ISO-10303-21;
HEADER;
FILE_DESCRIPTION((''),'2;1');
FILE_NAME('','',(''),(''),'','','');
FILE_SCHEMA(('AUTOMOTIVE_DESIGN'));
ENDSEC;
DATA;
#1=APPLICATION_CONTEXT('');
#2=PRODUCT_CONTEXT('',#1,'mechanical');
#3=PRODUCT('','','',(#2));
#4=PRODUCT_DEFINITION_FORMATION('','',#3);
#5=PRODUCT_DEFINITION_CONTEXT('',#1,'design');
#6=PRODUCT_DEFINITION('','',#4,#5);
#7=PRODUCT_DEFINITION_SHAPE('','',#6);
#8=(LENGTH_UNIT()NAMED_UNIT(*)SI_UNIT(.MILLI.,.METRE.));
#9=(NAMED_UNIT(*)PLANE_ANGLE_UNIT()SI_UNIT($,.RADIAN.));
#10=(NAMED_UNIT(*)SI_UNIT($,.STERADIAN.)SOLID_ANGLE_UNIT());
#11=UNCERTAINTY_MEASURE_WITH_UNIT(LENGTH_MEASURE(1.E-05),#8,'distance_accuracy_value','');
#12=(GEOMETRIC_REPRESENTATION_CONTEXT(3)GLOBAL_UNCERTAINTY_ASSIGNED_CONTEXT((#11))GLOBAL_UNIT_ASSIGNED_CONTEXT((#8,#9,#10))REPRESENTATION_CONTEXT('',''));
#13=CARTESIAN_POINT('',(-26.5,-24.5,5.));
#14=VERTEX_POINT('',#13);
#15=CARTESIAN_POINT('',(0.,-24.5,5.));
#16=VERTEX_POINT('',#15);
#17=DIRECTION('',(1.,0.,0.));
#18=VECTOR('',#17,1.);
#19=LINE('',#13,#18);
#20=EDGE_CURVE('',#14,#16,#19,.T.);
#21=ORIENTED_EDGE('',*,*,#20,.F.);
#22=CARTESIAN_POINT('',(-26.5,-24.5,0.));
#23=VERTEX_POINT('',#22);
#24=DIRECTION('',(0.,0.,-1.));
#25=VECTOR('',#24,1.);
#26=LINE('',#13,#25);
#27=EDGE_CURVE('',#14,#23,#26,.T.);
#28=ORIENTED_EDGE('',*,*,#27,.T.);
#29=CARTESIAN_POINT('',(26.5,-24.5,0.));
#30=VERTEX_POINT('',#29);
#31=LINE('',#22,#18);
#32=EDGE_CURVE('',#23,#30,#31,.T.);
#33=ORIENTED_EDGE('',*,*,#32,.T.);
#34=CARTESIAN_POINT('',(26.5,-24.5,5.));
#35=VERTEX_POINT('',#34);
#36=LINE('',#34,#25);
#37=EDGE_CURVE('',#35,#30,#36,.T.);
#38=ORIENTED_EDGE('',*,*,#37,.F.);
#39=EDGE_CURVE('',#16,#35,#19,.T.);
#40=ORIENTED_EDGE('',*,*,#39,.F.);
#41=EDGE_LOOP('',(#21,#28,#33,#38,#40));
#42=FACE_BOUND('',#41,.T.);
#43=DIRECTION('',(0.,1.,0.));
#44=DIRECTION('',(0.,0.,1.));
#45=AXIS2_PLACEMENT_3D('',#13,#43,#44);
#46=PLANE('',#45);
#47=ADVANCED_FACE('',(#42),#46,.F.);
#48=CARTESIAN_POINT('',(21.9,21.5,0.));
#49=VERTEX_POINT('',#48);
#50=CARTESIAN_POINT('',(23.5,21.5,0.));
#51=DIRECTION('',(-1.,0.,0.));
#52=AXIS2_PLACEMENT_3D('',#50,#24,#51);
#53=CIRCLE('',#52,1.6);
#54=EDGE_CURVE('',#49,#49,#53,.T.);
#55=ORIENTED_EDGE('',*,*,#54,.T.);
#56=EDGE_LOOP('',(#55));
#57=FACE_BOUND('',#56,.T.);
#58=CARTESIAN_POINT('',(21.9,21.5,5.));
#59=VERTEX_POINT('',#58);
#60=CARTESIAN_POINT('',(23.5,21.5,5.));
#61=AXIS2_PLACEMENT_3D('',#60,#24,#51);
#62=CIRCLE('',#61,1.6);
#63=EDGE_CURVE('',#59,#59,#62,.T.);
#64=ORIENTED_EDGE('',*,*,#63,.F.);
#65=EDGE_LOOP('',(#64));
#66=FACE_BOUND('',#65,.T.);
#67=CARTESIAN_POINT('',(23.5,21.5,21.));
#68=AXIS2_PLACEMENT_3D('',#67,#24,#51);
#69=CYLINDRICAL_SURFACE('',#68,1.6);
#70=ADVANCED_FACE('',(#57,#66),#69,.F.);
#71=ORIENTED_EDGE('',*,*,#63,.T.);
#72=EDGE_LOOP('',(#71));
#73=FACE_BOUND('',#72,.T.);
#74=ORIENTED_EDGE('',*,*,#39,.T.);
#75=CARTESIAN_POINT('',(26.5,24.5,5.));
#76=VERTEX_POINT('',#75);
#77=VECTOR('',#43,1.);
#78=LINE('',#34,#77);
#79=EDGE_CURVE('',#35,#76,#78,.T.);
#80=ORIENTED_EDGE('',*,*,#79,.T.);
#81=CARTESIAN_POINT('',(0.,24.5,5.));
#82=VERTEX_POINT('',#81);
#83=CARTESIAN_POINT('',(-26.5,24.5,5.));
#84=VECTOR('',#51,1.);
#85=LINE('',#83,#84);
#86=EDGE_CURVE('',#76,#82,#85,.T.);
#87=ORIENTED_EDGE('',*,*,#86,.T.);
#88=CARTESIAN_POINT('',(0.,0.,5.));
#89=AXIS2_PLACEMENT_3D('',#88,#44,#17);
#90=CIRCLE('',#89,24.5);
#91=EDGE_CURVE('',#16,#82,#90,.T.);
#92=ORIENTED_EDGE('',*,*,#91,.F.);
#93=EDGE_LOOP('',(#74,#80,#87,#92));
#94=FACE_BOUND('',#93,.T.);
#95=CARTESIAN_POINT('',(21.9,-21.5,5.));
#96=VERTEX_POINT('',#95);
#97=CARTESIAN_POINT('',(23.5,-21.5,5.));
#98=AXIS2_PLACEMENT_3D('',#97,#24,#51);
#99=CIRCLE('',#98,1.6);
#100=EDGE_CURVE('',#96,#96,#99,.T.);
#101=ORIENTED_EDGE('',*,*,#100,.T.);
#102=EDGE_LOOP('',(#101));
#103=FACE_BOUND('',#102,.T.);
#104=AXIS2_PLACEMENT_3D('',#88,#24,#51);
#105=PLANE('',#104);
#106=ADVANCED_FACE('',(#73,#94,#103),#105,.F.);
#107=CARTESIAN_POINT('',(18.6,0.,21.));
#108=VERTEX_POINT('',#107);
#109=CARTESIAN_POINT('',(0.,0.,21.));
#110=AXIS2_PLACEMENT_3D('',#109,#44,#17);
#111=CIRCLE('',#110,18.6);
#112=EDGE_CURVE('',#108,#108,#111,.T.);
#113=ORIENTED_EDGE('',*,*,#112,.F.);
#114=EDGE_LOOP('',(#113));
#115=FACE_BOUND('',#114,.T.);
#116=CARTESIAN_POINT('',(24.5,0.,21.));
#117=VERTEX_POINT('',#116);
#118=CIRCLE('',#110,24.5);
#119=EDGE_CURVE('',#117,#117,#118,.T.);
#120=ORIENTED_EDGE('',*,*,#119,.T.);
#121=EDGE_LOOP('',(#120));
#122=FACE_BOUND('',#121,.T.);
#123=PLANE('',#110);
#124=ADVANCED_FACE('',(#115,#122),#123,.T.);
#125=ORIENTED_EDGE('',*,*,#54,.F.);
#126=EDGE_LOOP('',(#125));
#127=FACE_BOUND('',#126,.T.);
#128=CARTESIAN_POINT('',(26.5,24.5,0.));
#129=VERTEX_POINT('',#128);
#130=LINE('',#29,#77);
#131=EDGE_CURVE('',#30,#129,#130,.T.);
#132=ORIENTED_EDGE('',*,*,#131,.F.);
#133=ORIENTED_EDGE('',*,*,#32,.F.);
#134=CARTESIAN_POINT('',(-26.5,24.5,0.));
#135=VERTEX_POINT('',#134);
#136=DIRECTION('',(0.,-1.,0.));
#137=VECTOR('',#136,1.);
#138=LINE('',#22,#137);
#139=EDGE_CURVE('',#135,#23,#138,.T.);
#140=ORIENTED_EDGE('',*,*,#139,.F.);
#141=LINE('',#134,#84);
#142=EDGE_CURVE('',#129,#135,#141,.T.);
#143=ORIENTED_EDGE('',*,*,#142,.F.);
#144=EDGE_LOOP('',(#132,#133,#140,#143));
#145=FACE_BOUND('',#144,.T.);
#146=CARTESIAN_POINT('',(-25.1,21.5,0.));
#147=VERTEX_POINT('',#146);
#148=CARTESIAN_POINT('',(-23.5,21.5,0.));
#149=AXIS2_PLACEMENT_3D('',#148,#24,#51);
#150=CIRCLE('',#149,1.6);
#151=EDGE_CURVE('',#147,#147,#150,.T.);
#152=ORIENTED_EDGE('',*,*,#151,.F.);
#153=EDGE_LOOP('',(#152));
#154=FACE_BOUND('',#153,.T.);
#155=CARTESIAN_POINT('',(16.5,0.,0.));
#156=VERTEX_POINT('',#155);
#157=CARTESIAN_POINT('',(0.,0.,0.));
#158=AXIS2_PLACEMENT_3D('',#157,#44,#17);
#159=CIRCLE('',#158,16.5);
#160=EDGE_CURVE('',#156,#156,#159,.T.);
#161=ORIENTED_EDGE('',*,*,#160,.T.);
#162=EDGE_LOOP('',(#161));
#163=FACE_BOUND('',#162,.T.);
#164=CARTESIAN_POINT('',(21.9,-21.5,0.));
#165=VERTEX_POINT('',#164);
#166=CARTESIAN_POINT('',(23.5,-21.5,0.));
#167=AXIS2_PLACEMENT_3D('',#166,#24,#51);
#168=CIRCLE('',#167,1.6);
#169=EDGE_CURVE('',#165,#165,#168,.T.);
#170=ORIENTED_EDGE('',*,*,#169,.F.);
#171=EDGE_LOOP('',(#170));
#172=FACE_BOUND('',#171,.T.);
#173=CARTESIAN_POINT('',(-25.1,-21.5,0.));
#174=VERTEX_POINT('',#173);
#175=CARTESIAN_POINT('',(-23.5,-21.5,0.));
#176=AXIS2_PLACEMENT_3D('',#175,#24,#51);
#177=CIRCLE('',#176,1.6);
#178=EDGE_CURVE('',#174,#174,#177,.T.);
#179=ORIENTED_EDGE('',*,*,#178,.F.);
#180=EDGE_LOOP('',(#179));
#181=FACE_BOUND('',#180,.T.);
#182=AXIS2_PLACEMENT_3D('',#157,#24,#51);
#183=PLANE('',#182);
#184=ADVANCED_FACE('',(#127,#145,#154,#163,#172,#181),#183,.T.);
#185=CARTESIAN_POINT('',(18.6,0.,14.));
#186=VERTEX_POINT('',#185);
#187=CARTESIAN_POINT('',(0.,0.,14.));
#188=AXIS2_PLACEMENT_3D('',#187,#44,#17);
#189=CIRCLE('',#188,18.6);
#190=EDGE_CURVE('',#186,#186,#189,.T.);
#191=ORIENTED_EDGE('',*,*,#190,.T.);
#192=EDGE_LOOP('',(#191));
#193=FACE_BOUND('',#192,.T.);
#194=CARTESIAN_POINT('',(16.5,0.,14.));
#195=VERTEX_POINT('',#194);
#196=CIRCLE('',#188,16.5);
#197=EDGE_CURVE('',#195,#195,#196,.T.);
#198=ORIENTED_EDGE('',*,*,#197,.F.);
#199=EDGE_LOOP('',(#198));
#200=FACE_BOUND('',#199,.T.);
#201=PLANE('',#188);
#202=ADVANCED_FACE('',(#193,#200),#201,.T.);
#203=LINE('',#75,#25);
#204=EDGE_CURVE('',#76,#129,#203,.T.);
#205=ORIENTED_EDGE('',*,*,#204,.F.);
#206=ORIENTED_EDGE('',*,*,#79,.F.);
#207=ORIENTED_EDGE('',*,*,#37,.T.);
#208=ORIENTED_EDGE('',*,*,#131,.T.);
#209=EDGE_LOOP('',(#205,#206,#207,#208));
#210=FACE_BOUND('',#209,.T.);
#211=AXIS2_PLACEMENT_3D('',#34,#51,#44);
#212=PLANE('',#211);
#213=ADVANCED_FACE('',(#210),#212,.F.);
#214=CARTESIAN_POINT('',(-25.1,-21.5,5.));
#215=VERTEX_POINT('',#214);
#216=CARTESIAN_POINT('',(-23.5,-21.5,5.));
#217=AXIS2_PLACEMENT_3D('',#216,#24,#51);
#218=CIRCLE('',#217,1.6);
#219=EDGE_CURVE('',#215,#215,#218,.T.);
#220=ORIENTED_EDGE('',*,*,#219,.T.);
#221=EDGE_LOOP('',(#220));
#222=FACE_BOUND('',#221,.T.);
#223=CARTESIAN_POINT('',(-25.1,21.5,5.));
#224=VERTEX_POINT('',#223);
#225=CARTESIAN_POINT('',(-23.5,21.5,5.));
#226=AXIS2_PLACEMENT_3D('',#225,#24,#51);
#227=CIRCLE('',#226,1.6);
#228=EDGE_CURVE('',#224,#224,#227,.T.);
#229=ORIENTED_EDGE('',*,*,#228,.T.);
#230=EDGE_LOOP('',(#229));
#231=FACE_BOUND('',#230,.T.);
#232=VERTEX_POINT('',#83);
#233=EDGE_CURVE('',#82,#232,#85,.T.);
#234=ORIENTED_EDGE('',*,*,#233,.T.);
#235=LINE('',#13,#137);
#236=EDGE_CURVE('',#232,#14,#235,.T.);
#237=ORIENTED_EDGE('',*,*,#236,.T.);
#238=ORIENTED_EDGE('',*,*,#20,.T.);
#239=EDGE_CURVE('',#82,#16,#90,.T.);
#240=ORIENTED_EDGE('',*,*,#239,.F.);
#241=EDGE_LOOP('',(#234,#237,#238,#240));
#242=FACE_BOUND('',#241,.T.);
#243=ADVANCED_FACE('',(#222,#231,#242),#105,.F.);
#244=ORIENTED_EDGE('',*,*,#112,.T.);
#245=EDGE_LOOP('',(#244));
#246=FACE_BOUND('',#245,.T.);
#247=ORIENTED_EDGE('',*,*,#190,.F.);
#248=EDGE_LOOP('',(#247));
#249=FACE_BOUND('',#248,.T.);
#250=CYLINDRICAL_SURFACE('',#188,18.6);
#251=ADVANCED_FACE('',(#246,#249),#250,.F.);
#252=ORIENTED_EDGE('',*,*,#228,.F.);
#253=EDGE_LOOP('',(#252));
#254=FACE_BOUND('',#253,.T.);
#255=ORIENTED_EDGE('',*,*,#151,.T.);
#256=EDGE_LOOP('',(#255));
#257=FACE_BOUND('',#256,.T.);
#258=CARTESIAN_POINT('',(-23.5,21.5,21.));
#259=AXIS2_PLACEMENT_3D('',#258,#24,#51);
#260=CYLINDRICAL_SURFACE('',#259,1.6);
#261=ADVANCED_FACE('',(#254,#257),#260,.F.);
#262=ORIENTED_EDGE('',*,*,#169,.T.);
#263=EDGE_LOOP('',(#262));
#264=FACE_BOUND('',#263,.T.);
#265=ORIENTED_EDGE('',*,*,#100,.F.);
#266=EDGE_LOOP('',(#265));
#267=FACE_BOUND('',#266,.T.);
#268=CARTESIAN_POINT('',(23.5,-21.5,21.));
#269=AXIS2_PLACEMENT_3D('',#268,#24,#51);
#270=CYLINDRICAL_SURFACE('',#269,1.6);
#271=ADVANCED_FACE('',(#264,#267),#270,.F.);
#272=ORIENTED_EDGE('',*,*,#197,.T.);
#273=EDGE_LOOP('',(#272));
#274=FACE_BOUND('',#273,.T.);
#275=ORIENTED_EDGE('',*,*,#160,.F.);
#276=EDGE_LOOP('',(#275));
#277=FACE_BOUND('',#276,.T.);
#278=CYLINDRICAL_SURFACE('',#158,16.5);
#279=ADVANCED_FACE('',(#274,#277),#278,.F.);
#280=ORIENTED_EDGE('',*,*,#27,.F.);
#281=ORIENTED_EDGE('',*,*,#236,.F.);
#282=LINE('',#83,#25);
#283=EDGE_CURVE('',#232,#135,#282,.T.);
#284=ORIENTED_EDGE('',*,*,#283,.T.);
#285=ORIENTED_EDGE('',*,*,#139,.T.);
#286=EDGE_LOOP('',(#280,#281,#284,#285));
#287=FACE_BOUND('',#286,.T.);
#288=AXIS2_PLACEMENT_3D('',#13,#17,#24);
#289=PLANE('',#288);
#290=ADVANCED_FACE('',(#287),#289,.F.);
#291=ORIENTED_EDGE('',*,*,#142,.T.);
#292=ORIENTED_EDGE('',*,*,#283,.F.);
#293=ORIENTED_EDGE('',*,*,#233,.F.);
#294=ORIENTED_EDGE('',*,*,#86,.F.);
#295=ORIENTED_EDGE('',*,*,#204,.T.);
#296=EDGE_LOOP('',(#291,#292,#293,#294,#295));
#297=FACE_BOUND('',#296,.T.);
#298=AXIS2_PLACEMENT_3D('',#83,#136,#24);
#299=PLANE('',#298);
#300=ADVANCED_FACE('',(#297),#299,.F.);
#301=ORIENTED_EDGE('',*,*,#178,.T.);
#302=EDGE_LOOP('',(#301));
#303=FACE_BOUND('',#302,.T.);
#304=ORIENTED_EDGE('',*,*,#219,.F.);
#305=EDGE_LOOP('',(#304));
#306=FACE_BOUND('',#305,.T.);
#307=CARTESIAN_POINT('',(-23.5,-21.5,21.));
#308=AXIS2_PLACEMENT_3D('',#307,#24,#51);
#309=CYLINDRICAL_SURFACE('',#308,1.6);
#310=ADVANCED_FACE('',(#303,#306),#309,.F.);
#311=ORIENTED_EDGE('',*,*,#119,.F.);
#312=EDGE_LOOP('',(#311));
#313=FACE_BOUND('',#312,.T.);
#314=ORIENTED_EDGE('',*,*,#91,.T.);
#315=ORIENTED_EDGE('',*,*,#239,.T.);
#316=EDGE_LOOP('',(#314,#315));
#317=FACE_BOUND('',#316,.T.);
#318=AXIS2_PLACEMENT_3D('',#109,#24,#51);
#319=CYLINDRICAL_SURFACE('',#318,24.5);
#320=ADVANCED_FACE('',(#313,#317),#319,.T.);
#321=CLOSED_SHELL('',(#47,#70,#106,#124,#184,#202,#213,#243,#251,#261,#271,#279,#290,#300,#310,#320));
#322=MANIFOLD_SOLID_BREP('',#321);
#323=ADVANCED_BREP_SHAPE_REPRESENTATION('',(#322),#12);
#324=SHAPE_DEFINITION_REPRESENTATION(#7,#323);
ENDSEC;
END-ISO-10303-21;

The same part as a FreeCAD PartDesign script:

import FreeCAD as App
import Part
import Sketcher


def add_polygon(sketch, points):
    """Adds a closed chain of lines whose ends are joined by coincident constraints."""
    first, n = sketch.GeometryCount, len(points)
    for a, b in zip(points, points[1:] + points[:1]):
        sketch.addGeometry(Part.LineSegment(App.Vector(*a, 0), App.Vector(*b, 0)), False)
    for i in range(n):
        sketch.addConstraint(Sketcher.Constraint("Coincident", first + i, 2, first + (i + 1) % n, 1))

doc = App.newDocument("Part")
body = doc.addObject("PartDesign::Body", "Body")

sketch1 = doc.addObject("Sketcher::SketchObject", "Sketch")
body.addObject(sketch1)
sketch1.AttachmentSupport = (doc.XY_Plane, [""])
sketch1.MapMode = "FlatFace"
add_polygon(sketch1, [(-26, 24), (-26, -24), (26, -24), (26, 24)])
sketch1.addConstraint(Sketcher.Constraint("Vertical", 0))
sketch1.addConstraint(Sketcher.Constraint("Horizontal", 1))
sketch1.addConstraint(Sketcher.Constraint("Vertical", 2))
sketch1.addConstraint(Sketcher.Constraint("Horizontal", 3))
sketch1.addConstraint(Sketcher.Constraint("Symmetric", 0, 2, 2, 2, -1, 1))
sketch1.addConstraint(Sketcher.Constraint("DistanceX", 1, 1, 1, 2, 53.0))
sketch1.addConstraint(Sketcher.Constraint("DistanceY", 0, 2, 0, 1, 49.0))
pad1 = doc.addObject("PartDesign::Pad", "Pad")
body.addObject(pad1)
pad1.Profile = sketch1
pad1.Length = 5

sketch2 = doc.addObject("Sketcher::SketchObject", "Sketch001")
body.addObject(sketch2)
sketch2.AttachmentSupport = (doc.XY_Plane, [""])
sketch2.MapMode = "FlatFace"
sketch2.AttachmentOffset = App.Placement(App.Vector(0, 0, 5), App.Rotation())
sketch2.addGeometry(Part.Circle(App.Vector(0, 0, 0), App.Vector(0, 0, 1), 24), False)
sketch2.addConstraint(Sketcher.Constraint("Coincident", 0, 3, -1, 1))
sketch2.addConstraint(Sketcher.Constraint("Diameter", 0, 49.0))
pad2 = doc.addObject("PartDesign::Pad", "Pad001")
body.addObject(pad2)
pad2.Profile = sketch2
pad2.Length = 16

sketch3 = doc.addObject("Sketcher::SketchObject", "Sketch002")
body.addObject(sketch3)
sketch3.AttachmentSupport = (doc.XY_Plane, [""])
sketch3.MapMode = "FlatFace"
sketch3.addGeometry(Part.Circle(App.Vector(-23.5, -21.5, 0), App.Vector(0, 0, 1), 1.6), False)
sketch3.addGeometry(Part.Circle(App.Vector(23.5, -21.5, 0), App.Vector(0, 0, 1), 1.6), False)
sketch3.addGeometry(Part.Circle(App.Vector(-23.5, 21.5, 0), App.Vector(0, 0, 1), 1.6), False)
sketch3.addGeometry(Part.Circle(App.Vector(23.5, 21.5, 0), App.Vector(0, 0, 1), 1.6), False)
sketch3.addConstraint(Sketcher.Constraint("Equal", 0, 1))
sketch3.addConstraint(Sketcher.Constraint("Equal", 1, 2))
sketch3.addConstraint(Sketcher.Constraint("Equal", 2, 3))
sketch3.addConstraint(Sketcher.Constraint("Symmetric", 1, 3, 2, 3, -1, 1))
sketch3.addConstraint(Sketcher.Constraint("Symmetric", 0, 3, 3, 3, -1, 1))
sketch3.addConstraint(Sketcher.Constraint("Symmetric", 0, 3, 1, 3, -2))
sketch3.addConstraint(Sketcher.Constraint("Diameter", 0, 3.2))
sketch3.addConstraint(Sketcher.Constraint("DistanceX", 0, 3, 1, 3, 47.0))
sketch3.addConstraint(Sketcher.Constraint("DistanceY", 0, 3, 2, 3, 43.0))
pocket1 = doc.addObject("PartDesign::Pocket", "Pocket")
body.addObject(pocket1)
pocket1.Profile = sketch3
pocket1.Type = "ThroughAll"
pocket1.Reversed = True

sketch4 = doc.addObject("Sketcher::SketchObject", "Sketch003")
body.addObject(sketch4)
sketch4.AttachmentSupport = (doc.XY_Plane, [""])
sketch4.MapMode = "FlatFace"
sketch4.AttachmentOffset = App.Placement(App.Vector(0, 0, 21), App.Rotation())
sketch4.addGeometry(Part.Circle(App.Vector(0, 0, 0), App.Vector(0, 0, 1), 19), False)
sketch4.addConstraint(Sketcher.Constraint("Coincident", 0, 3, -1, 1))
sketch4.addConstraint(Sketcher.Constraint("Diameter", 0, 37.2))
pocket2 = doc.addObject("PartDesign::Pocket", "Pocket001")
body.addObject(pocket2)
pocket2.Profile = sketch4
pocket2.Length = 7

sketch5 = doc.addObject("Sketcher::SketchObject", "Sketch004")
body.addObject(sketch5)
sketch5.AttachmentSupport = (doc.XY_Plane, [""])
sketch5.MapMode = "FlatFace"
sketch5.AttachmentOffset = App.Placement(App.Vector(0, 0, 14), App.Rotation())
sketch5.addGeometry(Part.Circle(App.Vector(0, 0, 0), App.Vector(0, 0, 1), 16), False)
sketch5.addConstraint(Sketcher.Constraint("Coincident", 0, 3, -1, 1))
sketch5.addConstraint(Sketcher.Constraint("Diameter", 0, 33.0))
pocket3 = doc.addObject("PartDesign::Pocket", "Pocket002")
body.addObject(pocket3)
pocket3.Profile = sketch5
pocket3.Type = "ThroughAll"

doc.recompute()
